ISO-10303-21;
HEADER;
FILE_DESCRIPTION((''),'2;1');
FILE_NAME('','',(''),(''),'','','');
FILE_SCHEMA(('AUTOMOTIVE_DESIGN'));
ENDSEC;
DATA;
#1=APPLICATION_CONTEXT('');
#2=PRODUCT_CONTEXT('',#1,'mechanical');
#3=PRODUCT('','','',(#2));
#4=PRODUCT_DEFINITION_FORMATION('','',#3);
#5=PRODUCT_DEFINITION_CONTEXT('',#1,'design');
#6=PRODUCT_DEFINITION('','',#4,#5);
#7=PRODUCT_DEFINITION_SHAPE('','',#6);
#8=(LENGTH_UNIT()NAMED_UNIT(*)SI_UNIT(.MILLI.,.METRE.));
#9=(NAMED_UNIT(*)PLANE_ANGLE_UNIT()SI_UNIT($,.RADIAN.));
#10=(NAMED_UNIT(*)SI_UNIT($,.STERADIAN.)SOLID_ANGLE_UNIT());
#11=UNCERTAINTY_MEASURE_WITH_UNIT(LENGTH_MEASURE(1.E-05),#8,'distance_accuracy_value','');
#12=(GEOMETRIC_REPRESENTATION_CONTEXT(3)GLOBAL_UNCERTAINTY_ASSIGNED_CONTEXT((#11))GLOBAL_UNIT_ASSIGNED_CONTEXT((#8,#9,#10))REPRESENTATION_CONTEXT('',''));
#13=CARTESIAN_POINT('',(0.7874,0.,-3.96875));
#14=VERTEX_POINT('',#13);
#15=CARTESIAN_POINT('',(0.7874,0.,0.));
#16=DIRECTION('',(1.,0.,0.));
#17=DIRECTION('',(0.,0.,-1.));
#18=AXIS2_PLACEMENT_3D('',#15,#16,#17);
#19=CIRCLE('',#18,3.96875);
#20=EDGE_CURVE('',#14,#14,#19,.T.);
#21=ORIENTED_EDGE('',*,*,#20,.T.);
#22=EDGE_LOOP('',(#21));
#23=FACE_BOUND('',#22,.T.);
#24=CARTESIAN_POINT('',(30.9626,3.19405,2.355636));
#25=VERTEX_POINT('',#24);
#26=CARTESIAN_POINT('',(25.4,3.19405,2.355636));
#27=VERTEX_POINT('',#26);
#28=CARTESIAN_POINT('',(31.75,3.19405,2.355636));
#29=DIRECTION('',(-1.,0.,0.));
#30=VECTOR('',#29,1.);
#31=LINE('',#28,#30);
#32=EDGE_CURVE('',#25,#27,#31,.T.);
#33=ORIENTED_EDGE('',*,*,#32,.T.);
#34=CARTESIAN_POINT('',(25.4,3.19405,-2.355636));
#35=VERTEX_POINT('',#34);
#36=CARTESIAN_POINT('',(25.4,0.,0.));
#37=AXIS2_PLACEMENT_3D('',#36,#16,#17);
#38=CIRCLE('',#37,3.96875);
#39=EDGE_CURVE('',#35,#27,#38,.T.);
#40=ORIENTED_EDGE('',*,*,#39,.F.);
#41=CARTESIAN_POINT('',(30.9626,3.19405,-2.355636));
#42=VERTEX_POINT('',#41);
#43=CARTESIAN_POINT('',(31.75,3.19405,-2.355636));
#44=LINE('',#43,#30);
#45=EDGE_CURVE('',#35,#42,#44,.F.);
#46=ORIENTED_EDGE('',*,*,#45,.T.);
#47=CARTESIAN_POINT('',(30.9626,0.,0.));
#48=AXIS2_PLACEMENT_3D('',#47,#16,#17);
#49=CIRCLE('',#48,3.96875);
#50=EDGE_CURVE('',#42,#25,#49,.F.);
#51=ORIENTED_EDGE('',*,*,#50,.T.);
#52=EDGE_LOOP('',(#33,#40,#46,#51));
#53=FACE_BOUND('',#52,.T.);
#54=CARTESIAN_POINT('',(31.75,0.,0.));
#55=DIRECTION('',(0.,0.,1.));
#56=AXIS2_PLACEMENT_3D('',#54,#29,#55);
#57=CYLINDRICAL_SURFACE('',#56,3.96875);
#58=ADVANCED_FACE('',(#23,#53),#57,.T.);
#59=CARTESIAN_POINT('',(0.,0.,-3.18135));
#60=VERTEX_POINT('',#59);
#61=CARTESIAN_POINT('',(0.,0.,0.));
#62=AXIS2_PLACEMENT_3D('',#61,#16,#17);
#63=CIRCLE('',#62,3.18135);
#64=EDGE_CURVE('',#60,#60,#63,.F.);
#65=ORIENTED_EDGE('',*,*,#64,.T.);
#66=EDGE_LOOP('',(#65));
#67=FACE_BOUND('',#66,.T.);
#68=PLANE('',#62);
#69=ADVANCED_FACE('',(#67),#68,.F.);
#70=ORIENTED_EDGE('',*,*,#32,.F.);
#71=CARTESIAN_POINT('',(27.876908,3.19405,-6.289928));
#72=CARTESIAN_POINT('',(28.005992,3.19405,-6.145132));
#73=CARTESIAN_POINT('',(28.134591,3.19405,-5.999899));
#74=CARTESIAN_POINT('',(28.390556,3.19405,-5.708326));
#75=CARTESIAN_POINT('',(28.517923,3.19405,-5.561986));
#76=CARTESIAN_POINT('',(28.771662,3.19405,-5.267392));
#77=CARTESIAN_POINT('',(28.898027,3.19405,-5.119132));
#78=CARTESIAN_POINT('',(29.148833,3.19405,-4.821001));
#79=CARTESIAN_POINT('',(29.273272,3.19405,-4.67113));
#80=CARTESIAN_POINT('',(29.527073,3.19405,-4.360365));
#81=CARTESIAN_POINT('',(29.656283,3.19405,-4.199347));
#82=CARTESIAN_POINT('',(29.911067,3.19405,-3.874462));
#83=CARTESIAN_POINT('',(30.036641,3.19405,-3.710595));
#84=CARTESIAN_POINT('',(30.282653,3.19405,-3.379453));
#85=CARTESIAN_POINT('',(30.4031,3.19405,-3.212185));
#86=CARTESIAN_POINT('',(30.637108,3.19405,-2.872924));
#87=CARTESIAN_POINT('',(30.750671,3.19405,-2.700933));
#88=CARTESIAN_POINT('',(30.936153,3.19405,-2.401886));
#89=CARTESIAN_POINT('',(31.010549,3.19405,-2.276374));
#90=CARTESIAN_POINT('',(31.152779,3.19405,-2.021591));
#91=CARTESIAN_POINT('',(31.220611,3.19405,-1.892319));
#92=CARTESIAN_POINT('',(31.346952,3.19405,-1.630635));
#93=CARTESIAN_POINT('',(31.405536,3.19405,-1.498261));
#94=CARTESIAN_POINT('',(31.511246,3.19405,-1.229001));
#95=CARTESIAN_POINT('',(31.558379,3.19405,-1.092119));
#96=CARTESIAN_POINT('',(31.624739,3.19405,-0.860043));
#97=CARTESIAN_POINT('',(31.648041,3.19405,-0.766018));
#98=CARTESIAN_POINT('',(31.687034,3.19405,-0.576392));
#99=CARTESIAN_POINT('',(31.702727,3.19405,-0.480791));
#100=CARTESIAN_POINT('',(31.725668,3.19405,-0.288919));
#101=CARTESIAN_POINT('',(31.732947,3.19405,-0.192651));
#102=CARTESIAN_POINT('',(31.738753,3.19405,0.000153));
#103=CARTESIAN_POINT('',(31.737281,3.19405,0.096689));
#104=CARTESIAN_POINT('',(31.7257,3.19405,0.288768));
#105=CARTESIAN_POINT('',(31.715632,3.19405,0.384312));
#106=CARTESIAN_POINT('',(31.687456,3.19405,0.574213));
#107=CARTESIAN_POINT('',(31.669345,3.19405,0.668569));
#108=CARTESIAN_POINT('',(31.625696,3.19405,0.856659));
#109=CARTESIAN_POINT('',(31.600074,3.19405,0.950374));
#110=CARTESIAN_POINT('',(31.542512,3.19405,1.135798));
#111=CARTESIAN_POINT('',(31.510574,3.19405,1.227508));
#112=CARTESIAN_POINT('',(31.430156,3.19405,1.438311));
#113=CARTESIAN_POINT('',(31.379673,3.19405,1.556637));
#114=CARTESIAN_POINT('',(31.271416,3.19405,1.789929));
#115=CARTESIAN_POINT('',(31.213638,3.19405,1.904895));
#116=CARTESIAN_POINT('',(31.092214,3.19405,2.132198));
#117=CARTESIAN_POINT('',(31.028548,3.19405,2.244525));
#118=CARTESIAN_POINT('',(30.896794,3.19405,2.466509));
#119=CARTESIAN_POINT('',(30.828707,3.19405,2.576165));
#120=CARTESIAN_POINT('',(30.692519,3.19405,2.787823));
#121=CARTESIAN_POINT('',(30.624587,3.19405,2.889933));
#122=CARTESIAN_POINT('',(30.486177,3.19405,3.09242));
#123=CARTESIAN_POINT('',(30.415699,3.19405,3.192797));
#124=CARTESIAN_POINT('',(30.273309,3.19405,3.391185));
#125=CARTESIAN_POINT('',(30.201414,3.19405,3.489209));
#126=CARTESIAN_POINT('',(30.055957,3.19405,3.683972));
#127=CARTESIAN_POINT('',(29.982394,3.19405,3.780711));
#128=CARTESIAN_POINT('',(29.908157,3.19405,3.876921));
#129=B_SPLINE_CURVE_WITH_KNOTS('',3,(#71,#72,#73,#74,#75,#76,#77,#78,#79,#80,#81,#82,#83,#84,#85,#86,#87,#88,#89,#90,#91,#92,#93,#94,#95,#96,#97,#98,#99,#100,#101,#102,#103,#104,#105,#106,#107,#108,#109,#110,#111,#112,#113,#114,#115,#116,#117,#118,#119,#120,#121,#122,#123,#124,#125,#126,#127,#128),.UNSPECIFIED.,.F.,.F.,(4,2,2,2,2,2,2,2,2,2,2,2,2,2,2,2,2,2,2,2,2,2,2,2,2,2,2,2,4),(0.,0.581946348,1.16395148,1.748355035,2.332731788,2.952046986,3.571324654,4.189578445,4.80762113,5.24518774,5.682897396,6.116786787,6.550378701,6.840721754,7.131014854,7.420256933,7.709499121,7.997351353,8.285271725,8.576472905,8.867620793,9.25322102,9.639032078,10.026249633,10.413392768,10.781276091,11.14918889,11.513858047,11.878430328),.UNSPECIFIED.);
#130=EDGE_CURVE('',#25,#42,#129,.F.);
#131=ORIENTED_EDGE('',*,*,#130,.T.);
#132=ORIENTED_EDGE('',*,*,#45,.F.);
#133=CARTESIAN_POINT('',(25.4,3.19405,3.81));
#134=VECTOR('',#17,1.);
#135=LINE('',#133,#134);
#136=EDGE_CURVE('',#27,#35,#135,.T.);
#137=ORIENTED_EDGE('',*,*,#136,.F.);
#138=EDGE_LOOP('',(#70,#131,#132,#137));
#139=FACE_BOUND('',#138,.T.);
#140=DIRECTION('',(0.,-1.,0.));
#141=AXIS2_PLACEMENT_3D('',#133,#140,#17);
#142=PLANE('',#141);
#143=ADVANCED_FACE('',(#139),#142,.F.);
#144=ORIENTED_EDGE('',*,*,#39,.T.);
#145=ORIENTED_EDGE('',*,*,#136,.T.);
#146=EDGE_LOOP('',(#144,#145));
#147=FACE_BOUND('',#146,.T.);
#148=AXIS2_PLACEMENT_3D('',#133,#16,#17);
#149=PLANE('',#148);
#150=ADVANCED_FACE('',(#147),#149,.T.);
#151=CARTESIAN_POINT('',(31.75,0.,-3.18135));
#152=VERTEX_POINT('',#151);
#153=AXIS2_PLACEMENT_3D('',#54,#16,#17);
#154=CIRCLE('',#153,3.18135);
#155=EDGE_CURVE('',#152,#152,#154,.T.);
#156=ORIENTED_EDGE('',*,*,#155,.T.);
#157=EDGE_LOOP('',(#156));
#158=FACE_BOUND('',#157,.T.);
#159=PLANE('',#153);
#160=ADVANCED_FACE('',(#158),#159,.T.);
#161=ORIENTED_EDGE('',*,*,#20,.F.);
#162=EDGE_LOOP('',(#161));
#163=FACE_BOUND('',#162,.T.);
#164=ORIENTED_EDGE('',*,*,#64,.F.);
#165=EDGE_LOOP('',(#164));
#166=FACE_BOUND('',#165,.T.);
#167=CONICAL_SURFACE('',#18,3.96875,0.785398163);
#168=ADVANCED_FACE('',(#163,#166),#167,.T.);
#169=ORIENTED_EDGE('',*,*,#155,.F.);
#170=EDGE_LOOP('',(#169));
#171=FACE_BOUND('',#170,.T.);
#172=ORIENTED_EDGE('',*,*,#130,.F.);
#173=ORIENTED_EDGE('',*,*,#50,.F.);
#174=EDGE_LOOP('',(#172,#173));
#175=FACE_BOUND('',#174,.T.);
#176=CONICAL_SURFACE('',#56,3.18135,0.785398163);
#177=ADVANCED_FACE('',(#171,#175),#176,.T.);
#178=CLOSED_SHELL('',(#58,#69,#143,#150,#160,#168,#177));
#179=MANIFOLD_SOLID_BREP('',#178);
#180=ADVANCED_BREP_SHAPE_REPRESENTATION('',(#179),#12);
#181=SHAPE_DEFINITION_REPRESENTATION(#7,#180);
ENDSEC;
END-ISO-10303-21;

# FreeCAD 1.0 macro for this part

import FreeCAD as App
import Part
import Sketcher
Q = App.Units.Quantity


def edges_at(feature, points):
    """Names of the edges that pass closest to the given points."""
    edges = feature.Shape.Edges
    near = lambda p: min(range(len(edges)), key=lambda i: edges[i].distToShape(Part.Vertex(*p))[0])
    return sorted({f"Edge{near(p) + 1}" for p in points})

doc = App.newDocument("Part")
body = doc.addObject("PartDesign::Body", "Body")

# Sketch on YZ plane
sketch1 = body.newObject("Sketcher::SketchObject", "Sketch")
sketch1.AttachmentSupport = (doc.getObject("YZ_Plane"), [""])
sketch1.MapMode = "FlatFace"
sketch1.addGeometry(Part.Circle(App.Vector(0, 0, 0), App.Vector(0, 0, 1), 4), False)
sketch1.addConstraint([
    Sketcher.Constraint("Coincident", 0, 3, -1, 1),
    Sketcher.Constraint("Diameter", 0, Q("0.3125 in")),
])
pad1 = body.newObject("PartDesign::Pad", "Pad")
pad1.Profile = sketch1
pad1.Length = Q("1.25 in")
doc.recompute()

chamfer = body.newObject("PartDesign::Chamfer", "Chamfer")
chamfer.Base = (pad1, edges_at(pad1, [(0, 0, 3.969), (31.75, 0, 3.969)]))
chamfer.Size = Q("0.031 in")

# Sketch on YZ plane
sketch2 = body.newObject("Sketcher::SketchObject", "Sketch001")
sketch2.AttachmentSupport = (doc.getObject("YZ_Plane"), [""])
sketch2.MapMode = "FlatFace"
sketch2.AttachmentOffset = App.Placement(App.Vector(0, 0, 1.25 * 25.4), App.Rotation())
sketch2.addGeometry([
    Part.LineSegment(App.Vector(4.5, 3.8, 0), App.Vector(3.2, 3.8, 0)),
    Part.LineSegment(App.Vector(3.2, 3.8, 0), App.Vector(3.2, -3.8, 0)),
    Part.LineSegment(App.Vector(3.2, -3.8, 0), App.Vector(4.5, -3.8, 0)),
    Part.LineSegment(App.Vector(4.5, -3.8, 0), App.Vector(4.5, 3.8, 0)),
], False)
sketch2.addConstraint([
    Sketcher.Constraint("Coincident", 0, 2, 1, 1),
    Sketcher.Constraint("Coincident", 1, 2, 2, 1),
    Sketcher.Constraint("Coincident", 2, 2, 3, 1),
    Sketcher.Constraint("Coincident", 3, 2, 0, 1),
    Sketcher.Constraint("Horizontal", 0),
    Sketcher.Constraint("Vertical", 1),
    Sketcher.Constraint("Horizontal", 2),
    Sketcher.Constraint("Vertical", 3),
    Sketcher.Constraint("DistanceY", 1, 2, 1, 1, Q("0.3 in")),
    Sketcher.Constraint("DistanceX", 0, 2, 0, 1, Q("0.05 in")),
    Sketcher.Constraint("DistanceY", -1, 1, 0, 2, Q("0.15 in")),
    Sketcher.Constraint("DistanceX", -1, 1, 0, 2, 3.19405),
])
pocket1 = body.newObject("PartDesign::Pocket", "Pocket")
pocket1.Profile = sketch2
pocket1.Length = Q("0.25 in")

doc.recompute()
